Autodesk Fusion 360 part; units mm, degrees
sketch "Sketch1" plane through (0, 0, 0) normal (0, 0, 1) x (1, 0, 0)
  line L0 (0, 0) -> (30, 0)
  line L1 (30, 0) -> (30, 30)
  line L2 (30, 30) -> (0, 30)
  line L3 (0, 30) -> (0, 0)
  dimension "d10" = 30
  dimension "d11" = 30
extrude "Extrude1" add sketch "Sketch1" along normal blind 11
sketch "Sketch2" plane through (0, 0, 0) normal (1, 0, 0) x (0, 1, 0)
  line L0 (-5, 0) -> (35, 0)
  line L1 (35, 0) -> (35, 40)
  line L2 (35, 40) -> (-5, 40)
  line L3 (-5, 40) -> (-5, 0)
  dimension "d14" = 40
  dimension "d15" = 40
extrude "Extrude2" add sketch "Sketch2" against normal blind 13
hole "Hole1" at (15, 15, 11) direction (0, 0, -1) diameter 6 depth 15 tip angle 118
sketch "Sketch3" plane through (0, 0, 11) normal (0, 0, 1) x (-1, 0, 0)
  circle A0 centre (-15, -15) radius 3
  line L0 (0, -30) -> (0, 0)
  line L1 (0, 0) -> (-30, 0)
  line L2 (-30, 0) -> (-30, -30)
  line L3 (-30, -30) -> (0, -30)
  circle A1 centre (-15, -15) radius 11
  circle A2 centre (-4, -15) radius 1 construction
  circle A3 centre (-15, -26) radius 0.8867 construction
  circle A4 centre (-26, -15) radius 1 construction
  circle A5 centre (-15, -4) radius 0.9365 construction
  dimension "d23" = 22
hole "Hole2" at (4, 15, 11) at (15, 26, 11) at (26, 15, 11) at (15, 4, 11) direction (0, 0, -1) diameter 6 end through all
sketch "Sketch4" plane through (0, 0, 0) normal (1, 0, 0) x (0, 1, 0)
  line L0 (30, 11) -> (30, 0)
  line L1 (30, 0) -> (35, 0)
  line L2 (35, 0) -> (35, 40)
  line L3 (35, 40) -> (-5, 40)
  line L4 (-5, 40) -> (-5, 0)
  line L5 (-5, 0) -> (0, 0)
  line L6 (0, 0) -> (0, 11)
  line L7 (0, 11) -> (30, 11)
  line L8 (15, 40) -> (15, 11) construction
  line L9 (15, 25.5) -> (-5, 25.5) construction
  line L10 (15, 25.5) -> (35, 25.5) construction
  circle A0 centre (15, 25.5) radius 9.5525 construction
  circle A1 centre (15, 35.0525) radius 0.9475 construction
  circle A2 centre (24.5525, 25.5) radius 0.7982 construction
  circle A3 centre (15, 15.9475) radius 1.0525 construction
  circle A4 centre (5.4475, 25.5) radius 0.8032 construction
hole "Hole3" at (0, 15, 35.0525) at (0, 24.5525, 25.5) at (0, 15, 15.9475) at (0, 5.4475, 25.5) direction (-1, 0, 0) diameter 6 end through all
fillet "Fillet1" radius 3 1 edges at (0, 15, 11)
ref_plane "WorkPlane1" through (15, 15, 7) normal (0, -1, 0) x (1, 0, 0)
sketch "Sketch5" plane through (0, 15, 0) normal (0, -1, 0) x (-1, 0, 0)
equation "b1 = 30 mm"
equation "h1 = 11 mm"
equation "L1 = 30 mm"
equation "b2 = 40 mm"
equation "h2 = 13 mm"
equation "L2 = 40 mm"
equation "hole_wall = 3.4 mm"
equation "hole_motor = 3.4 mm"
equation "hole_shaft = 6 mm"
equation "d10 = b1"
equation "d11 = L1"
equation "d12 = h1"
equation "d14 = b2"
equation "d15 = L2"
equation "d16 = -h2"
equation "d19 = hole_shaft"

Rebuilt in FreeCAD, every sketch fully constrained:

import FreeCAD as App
import Part
import Sketcher

V = App.Vector


def edges_at(feature, points):
    """Names of the edges that pass closest to the given points."""
    edges = feature.Shape.Edges
    near = lambda p: min(range(len(edges)), key=lambda i: edges[i].distToShape(Part.Vertex(*p))[0])
    return sorted({f"Edge{near(p) + 1}" for p in points})

doc = App.newDocument("Part")
body = doc.addObject("PartDesign::Body", "Body")

# Sketch on XY plane
sketch1 = doc.addObject("Sketcher::SketchObject", "Sketch")
body.addObject(sketch1)
sketch1.AttachmentSupport = (doc.XY_Plane, [""])
sketch1.MapMode = "FlatFace"
sketch1.addGeometry([
    Part.LineSegment(V(0, 30, 0), V(0, 0, 0)),
    Part.LineSegment(V(0, 0, 0), V(30, 0, 0)),
    Part.LineSegment(V(30, 0, 0), V(30, 30, 0)),
    Part.LineSegment(V(30, 30, 0), V(0, 30, 0)),
], False)
sketch1.addConstraint([
    Sketcher.Constraint("Coincident", 0, 2, 1, 1),
    Sketcher.Constraint("Coincident", 1, 2, 2, 1),
    Sketcher.Constraint("Coincident", 2, 2, 3, 1),
    Sketcher.Constraint("Coincident", 3, 2, 0, 1),
    Sketcher.Constraint("Vertical", 0),
    Sketcher.Constraint("Horizontal", 1),
    Sketcher.Constraint("Vertical", 2),
    Sketcher.Constraint("Horizontal", 3),
    Sketcher.Constraint("Coincident", 0, 2, -1, 1),
    Sketcher.Constraint("Equal", 3, 0),
    Sketcher.Constraint("DistanceX", 1, 1, 1, 2, 30.0),
])
pad1 = doc.addObject("PartDesign::Pad", "Pad")
body.addObject(pad1)
pad1.Profile = sketch1
pad1.Length = 11

# Sketch on YZ plane
sketch2 = doc.addObject("Sketcher::SketchObject", "Sketch001")
body.addObject(sketch2)
sketch2.AttachmentSupport = (doc.YZ_Plane, [""])
sketch2.MapMode = "FlatFace"
sketch2.addGeometry([
    Part.LineSegment(V(-5, 40, 0), V(-5, 0, 0)),
    Part.LineSegment(V(-5, 0, 0), V(35, 0, 0)),
    Part.LineSegment(V(35, 0, 0), V(35, 40, 0)),
    Part.LineSegment(V(35, 40, 0), V(-5, 40, 0)),
], False)
sketch2.addConstraint([
    Sketcher.Constraint("Coincident", 0, 2, 1, 1),
    Sketcher.Constraint("Coincident", 1, 2, 2, 1),
    Sketcher.Constraint("Coincident", 2, 2, 3, 1),
    Sketcher.Constraint("Coincident", 3, 2, 0, 1),
    Sketcher.Constraint("Vertical", 0),
    Sketcher.Constraint("Horizontal", 1),
    Sketcher.Constraint("Vertical", 2),
    Sketcher.Constraint("Horizontal", 3),
    Sketcher.Constraint("PointOnObject", 0, 2, -1),
    Sketcher.Constraint("Equal", 3, 0),
    Sketcher.Constraint("DistanceX", 1, 1, 1, 2, 40.0),
    Sketcher.Constraint("DistanceX", 0, 2, -1, 1, 5.0),
])
pad2 = doc.addObject("PartDesign::Pad", "Pad001")
body.addObject(pad2)
pad2.Profile = sketch2
pad2.Length = 13
pad2.Reversed = True

# Sketch on XY plane
sketch3 = doc.addObject("Sketcher::SketchObject", "Sketch002")
body.addObject(sketch3)
sketch3.AttachmentSupport = (doc.XY_Plane, [""])
sketch3.MapMode = "FlatFace"
sketch3.AttachmentOffset = App.Placement(V(0, 0, 11), App.Rotation())
sketch3.addGeometry(Part.Circle(V(15, 15, 0), V(0, 0, 1), 3), False)
sketch3.addConstraint([
    Sketcher.Constraint("Diameter", 0, 6.0),
    Sketcher.Constraint("DistanceX", -1, 1, 0, 3, 15.0),
    Sketcher.Constraint("DistanceY", -1, 1, 0, 3, 15.0),
])
doc.recompute()
hole = doc.addObject("PartDesign::Hole", "Hole")
body.addObject(hole)
hole.Profile = sketch3
hole.ThreadType = "None"
hole.Diameter = 6
hole.DepthType = "Dimension"
hole.Depth = 15
hole.DrillPoint = "Angled"
hole.DrillPointAngle = 118

# Sketch on XY plane
sketch4 = doc.addObject("Sketcher::SketchObject", "Sketch003")
body.addObject(sketch4)
sketch4.AttachmentSupport = (doc.XY_Plane, [""])
sketch4.MapMode = "FlatFace"
sketch4.AttachmentOffset = App.Placement(V(0, 0, 11), App.Rotation())
sketch4.addGeometry([
    Part.Circle(V(4, 15, 0), V(0, 0, 1), 3),
    Part.Circle(V(15, 26, 0), V(0, 0, 1), 3),
    Part.Circle(V(26, 15, 0), V(0, 0, 1), 3),
    Part.Circle(V(15, 4, 0), V(0, 0, 1), 3),
], False)
sketch4.addConstraint([
    Sketcher.Constraint("Equal", 0, 1),
    Sketcher.Constraint("Equal", 1, 2),
    Sketcher.Constraint("Equal", 2, 3),
    Sketcher.Constraint("Horizontal", 0, 3, 2, 3),
    Sketcher.Constraint("Vertical", 1, 3, 3, 3),
    Sketcher.Constraint("Diameter", 0, 6.0),
    Sketcher.Constraint("DistanceX", -1, 1, 0, 3, 4.0),
    Sketcher.Constraint("DistanceY", -1, 1, 0, 3, 15.0),
    Sketcher.Constraint("DistanceX", -1, 1, 1, 3, 15.0),
    Sketcher.Constraint("DistanceY", -1, 1, 1, 3, 26.0),
    Sketcher.Constraint("DistanceX", -1, 1, 2, 3, 26.0),
    Sketcher.Constraint("DistanceY", -1, 1, 3, 3, 4.0),
])
doc.recompute()
hole2 = doc.addObject("PartDesign::Hole", "Hole001")
body.addObject(hole2)
hole2.Profile = sketch4
hole2.ThreadType = "None"
hole2.Diameter = 6
hole2.DepthType = "ThroughAll"

# Sketch on YZ plane
sketch5 = doc.addObject("Sketcher::SketchObject", "Sketch004")
body.addObject(sketch5)
sketch5.AttachmentSupport = (doc.YZ_Plane, [""])
sketch5.MapMode = "FlatFace"
sketch5.addGeometry([
    Part.Circle(V(15, 35.1, 0), V(0, 0, 1), 3),
    Part.Circle(V(24.6, 25.5, 0), V(0, 0, 1), 3),
    Part.Circle(V(15, 15.9, 0), V(0, 0, 1), 3),
    Part.Circle(V(5.4, 25.5, 0), V(0, 0, 1), 3),
], False)
sketch5.addConstraint([
    Sketcher.Constraint("Equal", 0, 1),
    Sketcher.Constraint("Equal", 1, 2),
    Sketcher.Constraint("Equal", 2, 3),
    Sketcher.Constraint("Horizontal", 1, 3, 3, 3),
    Sketcher.Constraint("Vertical", 0, 3, 2, 3),
    Sketcher.Constraint("Diameter", 0, 6.0),
    Sketcher.Constraint("DistanceX", -1, 1, 0, 3, 15.0),
    Sketcher.Constraint("DistanceY", -1, 1, 1, 3, 25.5),
    Sketcher.Constraint("DistanceY", 2, 3, 0, 3, 19.105),
    Sketcher.Constraint("DistanceX", 3, 3, 1, 3, 19.105),
    Sketcher.Constraint("DistanceY", -1, 1, 0, 3, 35.0525),
    Sketcher.Constraint("DistanceX", -1, 1, 1, 3, 24.5525),
])
doc.recompute()
hole3 = doc.addObject("PartDesign::Hole", "Hole002")
body.addObject(hole3)
hole3.Profile = sketch5
hole3.ThreadType = "None"
hole3.Diameter = 6
hole3.DepthType = "ThroughAll"
doc.recompute()

fillet = doc.addObject("PartDesign::Fillet", "Fillet")
body.addObject(fillet)
fillet.Base = (hole3, edges_at(hole3, [(0, 15, 11)]))
fillet.Radius = 3

doc.recompute()
